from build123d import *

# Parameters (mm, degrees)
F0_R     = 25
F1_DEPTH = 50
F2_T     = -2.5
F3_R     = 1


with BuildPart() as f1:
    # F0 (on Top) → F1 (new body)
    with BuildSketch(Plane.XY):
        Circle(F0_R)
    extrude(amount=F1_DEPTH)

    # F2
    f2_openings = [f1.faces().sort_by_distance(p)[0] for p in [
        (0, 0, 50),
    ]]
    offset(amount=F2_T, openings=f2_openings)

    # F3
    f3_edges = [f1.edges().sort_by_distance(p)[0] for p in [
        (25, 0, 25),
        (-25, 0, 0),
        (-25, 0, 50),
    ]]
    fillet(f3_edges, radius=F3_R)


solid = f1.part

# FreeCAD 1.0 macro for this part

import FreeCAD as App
import Part
import Sketcher

V = App.Vector
Q = App.Units.Quantity


def edges_at(feature, points):
    """Names of the edges that pass closest to the given points."""
    edges = feature.Shape.Edges
    near = lambda p: min(range(len(edges)), key=lambda i: edges[i].distToShape(Part.Vertex(*p))[0])
    return sorted({f"Edge{near(p) + 1}" for p in points})


def faces_at(feature, points):
    """Names of the faces that lie closest to the given points."""
    faces = feature.Shape.Faces
    near = lambda p: min(range(len(faces)), key=lambda i: faces[i].distToShape(Part.Vertex(*p))[0])
    return sorted({f"Face{near(p) + 1}" for p in points})

doc = App.newDocument("Part")
body = doc.addObject("PartDesign::Body", "Body")

sketch1 = doc.addObject("Sketcher::SketchObject", "Sketch")
body.addObject(sketch1)
sketch1.AttachmentSupport = (doc.XY_Plane, [""])
sketch1.MapMode = "FlatFace"
sketch1.addGeometry(Part.Circle(V(0, 0, 0), V(0, 0, 1), 25), False)
sketch1.addConstraint([
    Sketcher.Constraint("Coincident", 0, 3, -1, 1),
    Sketcher.Constraint("Diameter", 0, Q("50 mm")),
])
pad1 = doc.addObject("PartDesign::Pad", "Pad")
body.addObject(pad1)
pad1.Profile = sketch1
pad1.Length = 50
doc.recompute()

thickness = doc.addObject("PartDesign::Thickness", "Thickness")
body.addObject(thickness)
thickness.Base = (pad1, faces_at(pad1, [(0, 0, 50)]))
thickness.Value = 2.5
thickness.Reversed = True
thickness.Join = "Arc"
doc.recompute()

fillet = doc.addObject("PartDesign::Fillet", "Fillet")
body.addObject(fillet)
fillet.Base = (thickness, edges_at(thickness, [(25, 0, 25), (-25, 0, 0), (-25, 0, 50)]))
fillet.Radius = 1

doc.recompute()
